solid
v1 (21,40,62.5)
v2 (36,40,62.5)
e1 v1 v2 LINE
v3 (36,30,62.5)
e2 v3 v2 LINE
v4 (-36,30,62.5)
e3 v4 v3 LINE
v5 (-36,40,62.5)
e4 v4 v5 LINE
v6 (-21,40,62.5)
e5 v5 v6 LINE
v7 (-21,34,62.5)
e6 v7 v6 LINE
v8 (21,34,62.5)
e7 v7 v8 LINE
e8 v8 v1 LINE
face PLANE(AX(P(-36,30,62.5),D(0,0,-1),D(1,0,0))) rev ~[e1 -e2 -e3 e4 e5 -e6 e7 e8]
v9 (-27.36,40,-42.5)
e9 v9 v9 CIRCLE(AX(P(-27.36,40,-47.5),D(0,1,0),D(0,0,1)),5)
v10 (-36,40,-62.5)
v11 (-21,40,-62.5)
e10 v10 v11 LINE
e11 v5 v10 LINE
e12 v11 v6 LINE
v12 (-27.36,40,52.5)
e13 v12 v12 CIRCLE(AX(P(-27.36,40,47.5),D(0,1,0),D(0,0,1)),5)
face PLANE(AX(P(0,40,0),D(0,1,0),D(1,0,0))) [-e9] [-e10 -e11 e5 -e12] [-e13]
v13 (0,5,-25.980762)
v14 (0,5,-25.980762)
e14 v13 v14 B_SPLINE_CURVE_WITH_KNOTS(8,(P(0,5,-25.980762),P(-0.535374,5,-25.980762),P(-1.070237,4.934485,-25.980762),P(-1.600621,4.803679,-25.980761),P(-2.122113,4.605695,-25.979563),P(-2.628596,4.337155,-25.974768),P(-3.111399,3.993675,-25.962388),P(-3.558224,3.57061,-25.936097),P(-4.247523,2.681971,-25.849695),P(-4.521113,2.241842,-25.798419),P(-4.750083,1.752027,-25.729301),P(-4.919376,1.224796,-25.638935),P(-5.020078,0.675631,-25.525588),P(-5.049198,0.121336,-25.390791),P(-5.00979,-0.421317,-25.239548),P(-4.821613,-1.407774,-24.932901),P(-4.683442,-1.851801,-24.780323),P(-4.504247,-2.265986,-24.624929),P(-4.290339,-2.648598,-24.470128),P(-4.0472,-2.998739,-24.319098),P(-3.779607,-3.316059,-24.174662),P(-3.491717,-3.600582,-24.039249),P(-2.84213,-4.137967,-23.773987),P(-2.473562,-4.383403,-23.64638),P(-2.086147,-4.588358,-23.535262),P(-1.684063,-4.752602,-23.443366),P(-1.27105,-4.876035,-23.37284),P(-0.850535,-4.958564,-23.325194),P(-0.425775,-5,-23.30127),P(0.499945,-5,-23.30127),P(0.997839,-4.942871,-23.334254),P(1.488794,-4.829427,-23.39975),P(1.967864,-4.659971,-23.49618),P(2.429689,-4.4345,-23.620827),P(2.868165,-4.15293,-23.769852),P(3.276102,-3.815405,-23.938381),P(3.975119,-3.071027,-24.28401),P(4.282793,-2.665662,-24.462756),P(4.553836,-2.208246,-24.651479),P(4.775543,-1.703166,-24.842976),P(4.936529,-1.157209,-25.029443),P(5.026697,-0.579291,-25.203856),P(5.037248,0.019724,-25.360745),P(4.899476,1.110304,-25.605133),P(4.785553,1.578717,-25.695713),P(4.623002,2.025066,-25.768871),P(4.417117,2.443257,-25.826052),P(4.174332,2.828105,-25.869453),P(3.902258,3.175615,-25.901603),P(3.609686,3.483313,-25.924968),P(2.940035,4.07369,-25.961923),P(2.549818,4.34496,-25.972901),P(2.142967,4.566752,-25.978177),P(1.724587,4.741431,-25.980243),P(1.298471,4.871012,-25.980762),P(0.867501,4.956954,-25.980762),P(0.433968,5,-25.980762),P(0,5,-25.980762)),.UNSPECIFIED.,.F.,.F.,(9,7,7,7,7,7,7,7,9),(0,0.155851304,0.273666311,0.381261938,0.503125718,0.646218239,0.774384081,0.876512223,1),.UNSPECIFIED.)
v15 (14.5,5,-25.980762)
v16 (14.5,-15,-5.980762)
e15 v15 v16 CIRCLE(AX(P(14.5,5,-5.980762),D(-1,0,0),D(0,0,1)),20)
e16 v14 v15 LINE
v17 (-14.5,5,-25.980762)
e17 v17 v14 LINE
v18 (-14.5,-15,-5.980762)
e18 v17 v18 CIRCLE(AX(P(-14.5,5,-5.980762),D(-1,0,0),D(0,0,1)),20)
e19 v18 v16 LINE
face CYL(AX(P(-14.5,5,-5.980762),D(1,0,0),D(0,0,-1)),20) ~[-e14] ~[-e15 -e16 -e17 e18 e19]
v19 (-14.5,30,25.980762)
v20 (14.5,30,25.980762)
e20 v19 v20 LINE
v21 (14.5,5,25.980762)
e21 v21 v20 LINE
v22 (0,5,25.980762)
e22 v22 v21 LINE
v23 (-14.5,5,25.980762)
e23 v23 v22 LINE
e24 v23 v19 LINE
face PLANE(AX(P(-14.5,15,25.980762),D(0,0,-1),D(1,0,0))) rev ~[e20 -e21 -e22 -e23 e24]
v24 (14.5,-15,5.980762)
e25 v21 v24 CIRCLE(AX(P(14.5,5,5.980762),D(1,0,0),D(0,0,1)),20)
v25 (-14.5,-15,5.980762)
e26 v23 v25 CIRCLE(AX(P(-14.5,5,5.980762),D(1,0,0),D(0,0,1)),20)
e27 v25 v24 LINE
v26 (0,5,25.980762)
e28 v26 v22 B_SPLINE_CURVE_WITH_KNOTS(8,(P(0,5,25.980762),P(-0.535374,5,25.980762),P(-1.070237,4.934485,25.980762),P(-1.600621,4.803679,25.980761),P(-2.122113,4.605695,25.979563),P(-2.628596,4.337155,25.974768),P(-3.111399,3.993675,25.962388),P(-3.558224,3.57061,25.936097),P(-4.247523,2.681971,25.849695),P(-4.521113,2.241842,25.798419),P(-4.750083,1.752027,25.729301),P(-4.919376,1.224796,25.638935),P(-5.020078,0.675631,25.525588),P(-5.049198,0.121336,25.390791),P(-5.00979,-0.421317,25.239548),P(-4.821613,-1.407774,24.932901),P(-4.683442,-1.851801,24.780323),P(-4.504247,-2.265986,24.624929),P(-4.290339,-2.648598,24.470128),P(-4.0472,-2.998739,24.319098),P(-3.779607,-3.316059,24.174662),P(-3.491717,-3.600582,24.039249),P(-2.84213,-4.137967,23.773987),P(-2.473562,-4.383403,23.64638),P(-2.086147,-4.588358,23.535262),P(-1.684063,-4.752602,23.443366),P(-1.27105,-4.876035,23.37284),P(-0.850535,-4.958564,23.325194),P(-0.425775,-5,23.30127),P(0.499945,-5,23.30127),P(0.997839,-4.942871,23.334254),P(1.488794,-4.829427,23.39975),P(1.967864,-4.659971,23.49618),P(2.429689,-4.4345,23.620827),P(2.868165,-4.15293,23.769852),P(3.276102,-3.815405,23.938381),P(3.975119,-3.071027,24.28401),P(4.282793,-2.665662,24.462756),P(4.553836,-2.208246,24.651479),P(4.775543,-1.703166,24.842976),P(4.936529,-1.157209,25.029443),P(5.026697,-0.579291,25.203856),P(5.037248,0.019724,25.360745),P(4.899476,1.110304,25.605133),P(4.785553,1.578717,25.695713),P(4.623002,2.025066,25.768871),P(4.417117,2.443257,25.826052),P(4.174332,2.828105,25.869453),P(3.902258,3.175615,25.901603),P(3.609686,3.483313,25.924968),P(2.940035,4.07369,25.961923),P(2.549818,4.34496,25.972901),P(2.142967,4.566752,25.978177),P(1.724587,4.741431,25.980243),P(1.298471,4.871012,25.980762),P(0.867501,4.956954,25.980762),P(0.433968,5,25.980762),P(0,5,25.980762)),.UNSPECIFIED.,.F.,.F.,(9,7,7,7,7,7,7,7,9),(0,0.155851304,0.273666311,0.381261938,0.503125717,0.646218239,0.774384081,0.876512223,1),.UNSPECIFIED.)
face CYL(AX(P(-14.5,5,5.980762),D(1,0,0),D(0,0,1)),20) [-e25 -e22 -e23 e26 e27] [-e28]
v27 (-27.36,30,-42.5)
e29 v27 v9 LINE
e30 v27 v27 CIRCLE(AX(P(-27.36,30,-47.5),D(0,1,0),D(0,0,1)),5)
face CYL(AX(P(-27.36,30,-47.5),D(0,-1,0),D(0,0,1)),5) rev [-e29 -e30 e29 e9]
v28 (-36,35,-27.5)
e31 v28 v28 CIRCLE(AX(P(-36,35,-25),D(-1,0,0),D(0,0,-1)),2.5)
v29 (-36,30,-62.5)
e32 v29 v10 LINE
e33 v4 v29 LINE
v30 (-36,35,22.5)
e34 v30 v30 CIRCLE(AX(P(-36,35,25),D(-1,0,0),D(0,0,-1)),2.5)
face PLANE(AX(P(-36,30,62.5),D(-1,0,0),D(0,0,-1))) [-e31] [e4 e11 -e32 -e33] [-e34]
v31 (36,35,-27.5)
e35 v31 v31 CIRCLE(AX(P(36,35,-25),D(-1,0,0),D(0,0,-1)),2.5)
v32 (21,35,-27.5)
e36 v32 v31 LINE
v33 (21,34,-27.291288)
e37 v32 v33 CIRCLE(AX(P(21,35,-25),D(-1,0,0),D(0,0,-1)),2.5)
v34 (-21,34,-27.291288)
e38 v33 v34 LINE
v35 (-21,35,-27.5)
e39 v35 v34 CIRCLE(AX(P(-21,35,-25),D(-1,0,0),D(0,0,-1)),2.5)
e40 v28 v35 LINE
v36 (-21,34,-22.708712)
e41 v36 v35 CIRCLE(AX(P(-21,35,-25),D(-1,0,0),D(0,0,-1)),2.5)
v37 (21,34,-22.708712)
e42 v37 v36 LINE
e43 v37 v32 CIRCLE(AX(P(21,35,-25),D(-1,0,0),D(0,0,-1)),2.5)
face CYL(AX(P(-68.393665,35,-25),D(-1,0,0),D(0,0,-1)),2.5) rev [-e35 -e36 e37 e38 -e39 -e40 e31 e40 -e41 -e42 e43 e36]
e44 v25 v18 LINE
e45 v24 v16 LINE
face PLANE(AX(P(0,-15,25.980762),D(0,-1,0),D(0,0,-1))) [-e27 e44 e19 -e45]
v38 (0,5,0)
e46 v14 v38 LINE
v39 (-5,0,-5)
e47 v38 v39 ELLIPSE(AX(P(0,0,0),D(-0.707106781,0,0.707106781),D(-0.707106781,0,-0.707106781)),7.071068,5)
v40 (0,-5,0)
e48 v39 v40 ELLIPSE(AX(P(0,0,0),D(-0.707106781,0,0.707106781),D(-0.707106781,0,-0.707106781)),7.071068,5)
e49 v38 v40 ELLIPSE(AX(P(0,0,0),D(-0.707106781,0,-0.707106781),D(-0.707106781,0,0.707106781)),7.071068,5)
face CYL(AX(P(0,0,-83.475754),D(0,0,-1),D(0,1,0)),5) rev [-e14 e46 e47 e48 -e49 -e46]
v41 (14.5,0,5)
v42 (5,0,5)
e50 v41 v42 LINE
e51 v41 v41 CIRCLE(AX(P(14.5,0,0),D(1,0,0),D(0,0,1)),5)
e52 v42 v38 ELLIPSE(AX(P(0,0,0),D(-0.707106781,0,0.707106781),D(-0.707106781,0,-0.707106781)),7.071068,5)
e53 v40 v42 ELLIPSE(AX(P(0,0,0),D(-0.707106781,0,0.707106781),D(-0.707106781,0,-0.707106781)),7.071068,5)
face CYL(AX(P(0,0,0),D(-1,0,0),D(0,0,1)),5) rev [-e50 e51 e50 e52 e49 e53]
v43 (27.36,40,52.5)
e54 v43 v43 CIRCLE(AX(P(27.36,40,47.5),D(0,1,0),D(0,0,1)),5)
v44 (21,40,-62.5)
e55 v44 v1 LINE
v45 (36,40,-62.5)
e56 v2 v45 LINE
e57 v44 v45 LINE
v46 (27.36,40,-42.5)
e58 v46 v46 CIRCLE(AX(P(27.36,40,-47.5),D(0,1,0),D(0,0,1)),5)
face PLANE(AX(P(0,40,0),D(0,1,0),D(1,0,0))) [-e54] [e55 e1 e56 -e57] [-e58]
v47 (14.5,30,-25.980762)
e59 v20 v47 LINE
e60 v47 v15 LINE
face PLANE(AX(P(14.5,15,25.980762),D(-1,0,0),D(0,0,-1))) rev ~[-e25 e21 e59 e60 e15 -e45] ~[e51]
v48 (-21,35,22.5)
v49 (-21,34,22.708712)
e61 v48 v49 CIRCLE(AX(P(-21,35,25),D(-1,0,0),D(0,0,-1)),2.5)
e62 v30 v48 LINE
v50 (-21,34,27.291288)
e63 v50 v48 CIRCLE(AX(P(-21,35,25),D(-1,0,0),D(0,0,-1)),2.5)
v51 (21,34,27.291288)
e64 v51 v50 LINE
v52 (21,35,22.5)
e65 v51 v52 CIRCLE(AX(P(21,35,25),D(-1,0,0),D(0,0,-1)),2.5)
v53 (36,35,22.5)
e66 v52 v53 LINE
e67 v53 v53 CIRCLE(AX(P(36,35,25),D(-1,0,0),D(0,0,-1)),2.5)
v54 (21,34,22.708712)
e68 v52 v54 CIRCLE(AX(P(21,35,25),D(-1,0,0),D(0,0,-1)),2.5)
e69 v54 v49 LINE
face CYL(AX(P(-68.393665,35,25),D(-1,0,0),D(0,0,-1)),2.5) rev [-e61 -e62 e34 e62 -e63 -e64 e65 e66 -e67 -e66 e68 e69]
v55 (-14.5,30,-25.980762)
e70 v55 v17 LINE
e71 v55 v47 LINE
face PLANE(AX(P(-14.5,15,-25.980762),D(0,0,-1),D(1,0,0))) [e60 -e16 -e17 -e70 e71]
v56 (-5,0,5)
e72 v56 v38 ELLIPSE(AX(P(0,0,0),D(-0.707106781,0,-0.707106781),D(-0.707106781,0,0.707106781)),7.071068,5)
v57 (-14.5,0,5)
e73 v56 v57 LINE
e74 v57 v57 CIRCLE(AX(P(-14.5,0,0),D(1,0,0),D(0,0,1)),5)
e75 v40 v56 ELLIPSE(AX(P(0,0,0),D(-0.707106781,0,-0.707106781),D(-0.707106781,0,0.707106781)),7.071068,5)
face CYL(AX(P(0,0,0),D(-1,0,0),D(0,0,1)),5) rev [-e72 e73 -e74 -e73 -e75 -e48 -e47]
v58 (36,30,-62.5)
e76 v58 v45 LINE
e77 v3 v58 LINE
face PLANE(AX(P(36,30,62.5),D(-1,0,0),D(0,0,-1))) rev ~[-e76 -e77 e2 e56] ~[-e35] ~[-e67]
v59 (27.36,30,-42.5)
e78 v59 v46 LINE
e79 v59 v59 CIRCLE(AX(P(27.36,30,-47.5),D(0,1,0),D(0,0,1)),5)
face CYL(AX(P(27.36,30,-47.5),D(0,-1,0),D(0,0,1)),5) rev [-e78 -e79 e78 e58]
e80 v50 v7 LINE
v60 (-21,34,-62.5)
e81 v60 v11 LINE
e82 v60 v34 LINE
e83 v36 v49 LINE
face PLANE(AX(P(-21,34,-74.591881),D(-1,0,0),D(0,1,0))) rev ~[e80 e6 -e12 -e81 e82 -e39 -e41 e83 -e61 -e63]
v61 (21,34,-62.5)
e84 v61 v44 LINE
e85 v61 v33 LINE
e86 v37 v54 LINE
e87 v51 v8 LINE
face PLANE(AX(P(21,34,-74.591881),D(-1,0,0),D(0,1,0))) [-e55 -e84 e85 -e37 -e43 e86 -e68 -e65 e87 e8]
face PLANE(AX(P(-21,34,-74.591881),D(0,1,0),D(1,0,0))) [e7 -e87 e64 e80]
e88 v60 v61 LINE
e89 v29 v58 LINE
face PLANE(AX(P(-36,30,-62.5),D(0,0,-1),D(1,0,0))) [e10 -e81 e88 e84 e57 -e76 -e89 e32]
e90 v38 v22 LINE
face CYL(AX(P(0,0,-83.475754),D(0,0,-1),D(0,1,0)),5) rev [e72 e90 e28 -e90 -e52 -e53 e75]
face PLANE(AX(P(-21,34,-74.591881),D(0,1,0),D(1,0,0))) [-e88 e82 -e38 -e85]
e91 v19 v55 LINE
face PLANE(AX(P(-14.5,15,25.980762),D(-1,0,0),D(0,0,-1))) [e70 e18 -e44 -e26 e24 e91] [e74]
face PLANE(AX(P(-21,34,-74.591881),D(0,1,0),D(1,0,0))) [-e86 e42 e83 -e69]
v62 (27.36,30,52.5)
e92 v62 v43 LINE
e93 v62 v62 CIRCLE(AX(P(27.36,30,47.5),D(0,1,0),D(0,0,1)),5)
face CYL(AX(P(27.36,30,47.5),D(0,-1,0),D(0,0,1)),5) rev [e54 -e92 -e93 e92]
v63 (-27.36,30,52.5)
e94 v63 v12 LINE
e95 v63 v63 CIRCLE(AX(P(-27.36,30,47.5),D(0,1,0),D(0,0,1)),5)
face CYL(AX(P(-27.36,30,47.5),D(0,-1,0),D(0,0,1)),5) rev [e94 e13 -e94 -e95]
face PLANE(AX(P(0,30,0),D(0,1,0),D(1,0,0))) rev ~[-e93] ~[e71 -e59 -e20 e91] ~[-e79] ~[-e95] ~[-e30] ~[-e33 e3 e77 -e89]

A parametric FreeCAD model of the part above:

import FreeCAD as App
import Part
import Sketcher
Q = App.Units.Quantity


def edges_at(feature, points):
    """Names of the edges that pass closest to the given points."""
    edges = feature.Shape.Edges
    near = lambda p: min(range(len(edges)), key=lambda i: edges[i].distToShape(Part.Vertex(*p))[0])
    return sorted({f"Edge{near(p) + 1}" for p in points})

doc = App.newDocument("Part")
params = doc.addObject("Spreadsheet::Sheet", "Params")
for row, (alias, value) in enumerate([
    ("sketch1_diameter", "10 mm"),
    ("sketch1_width", "30 mm"),
    ("pad1_length", "29 mm"),
    ("sketch2_width", "29 mm"),
    ("pad2_length", "15 mm"),
    ("sketch3_diameter", "10 mm"),
    ("sketch3_width", "72 mm"),
    ("sketch3_height", "125 mm"),
    ("pad3_length", "10 mm"),
    ("fillet_radius", "20 mm"),
    ("sketch4_diameter", "10 mm"),
    ("sketch5_width", "42 mm"),
    ("sketch5_height", "6 mm"),
    ("sketch6_diameter", "5 mm"),
], start=1):
    params.set(f"A{row}", alias)
    params.set(f"B{row}", "=" + value)
    params.setAlias(f"B{row}", alias)

body = doc.addObject("PartDesign::Body", "Body")

sketch1 = doc.addObject("Sketcher::SketchObject", "Sketch")
body.addObject(sketch1)
sketch1.AttachmentSupport = (doc.YZ_Plane, [""])
sketch1.MapMode = "FlatFace"
sketch1.addGeometry([
    Part.LineSegment(App.Vector(15, 25.980762, 0), App.Vector(-15, 25.980762, 0)),
    Part.LineSegment(App.Vector(-15, 25.980762, 0), App.Vector(-15, -25.980762, 0)),
    Part.LineSegment(App.Vector(-15, -25.980762, 0), App.Vector(15, -25.980762, 0)),
    Part.LineSegment(App.Vector(15, -25.980762, 0), App.Vector(15, 25.980762, 0)),
    Part.Circle(App.Vector(0, 0, 0), App.Vector(0, 0, 1), 5),
], False)
sketch1.addConstraint([
    Sketcher.Constraint("Coincident", 0, 2, 1, 1),
    Sketcher.Constraint("Coincident", 1, 2, 2, 1),
    Sketcher.Constraint("Coincident", 2, 2, 3, 1),
    Sketcher.Constraint("Coincident", 3, 2, 0, 1),
    Sketcher.Constraint("Horizontal", 0),
    Sketcher.Constraint("Vertical", 1),
    Sketcher.Constraint("Horizontal", 2),
    Sketcher.Constraint("Vertical", 3),
    Sketcher.Constraint("Coincident", 4, 3, -1, 1),
    Sketcher.Constraint("Symmetric", 0, 2, 2, 2, -1, 1),
    Sketcher.Constraint("Diameter", 4, Q("10 mm")),
    Sketcher.Constraint("DistanceX", 0, 2, 0, 1, Q("30 mm")),
    Sketcher.Constraint("DistanceY", 1, 2, 1, 1, Q("51.961524 mm")),
])
sketch1.setExpression("Constraints[10]", "Params.sketch1_diameter")
sketch1.setExpression("Constraints[11]", "Params.sketch1_width")
pad1 = doc.addObject("PartDesign::Pad", "Pad")
body.addObject(pad1)
pad1.Profile = sketch1
pad1.setExpression("Length", "Params.pad1_length")
pad1.Midplane = True

sketch2 = doc.addObject("Sketcher::SketchObject", "Sketch001")
body.addObject(sketch2)
sketch2.AttachmentSupport = (doc.XZ_Plane, [""])
sketch2.MapMode = "FlatFace"
sketch2.AttachmentOffset = App.Placement(App.Vector(0, 0, -15), App.Rotation())
sketch2.addGeometry([
    Part.LineSegment(App.Vector(-14.5, -25.980762, 0), App.Vector(-14.5, 25.980762, 0)),
    Part.LineSegment(App.Vector(-14.5, 25.980762, 0), App.Vector(14.5, 25.980762, 0)),
    Part.LineSegment(App.Vector(14.5, 25.980762, 0), App.Vector(14.5, -25.980762, 0)),
    Part.LineSegment(App.Vector(14.5, -25.980762, 0), App.Vector(-14.5, -25.980762, 0)),
], False)
sketch2.addConstraint([
    Sketcher.Constraint("Coincident", 0, 2, 1, 1),
    Sketcher.Constraint("Coincident", 1, 2, 2, 1),
    Sketcher.Constraint("Coincident", 2, 2, 3, 1),
    Sketcher.Constraint("Coincident", 3, 2, 0, 1),
    Sketcher.Constraint("Vertical", 0),
    Sketcher.Constraint("Horizontal", 1),
    Sketcher.Constraint("Vertical", 2),
    Sketcher.Constraint("Horizontal", 3),
    Sketcher.Constraint("Symmetric", 0, 2, 2, 2, -1, 1),
    Sketcher.Constraint("DistanceX", 1, 1, 1, 2, Q("29 mm")),
    Sketcher.Constraint("DistanceY", 0, 1, 0, 2, Q("51.961524 mm")),
])
sketch2.setExpression("Constraints[9]", "Params.sketch2_width")
pad2 = doc.addObject("PartDesign::Pad", "Pad001")
body.addObject(pad2)
pad2.Profile = sketch2
pad2.setExpression("Length", "Params.pad2_length")
pad2.Reversed = True

sketch3 = doc.addObject("Sketcher::SketchObject", "Sketch002")
body.addObject(sketch3)
sketch3.AttachmentSupport = (doc.XZ_Plane, [""])
sketch3.MapMode = "FlatFace"
sketch3.AttachmentOffset = App.Placement(App.Vector(0, 0, -30), App.Rotation())
sketch3.addGeometry([
    Part.LineSegment(App.Vector(-36, -62.5, 0), App.Vector(-36, 62.5, 0)),
    Part.LineSegment(App.Vector(-36, 62.5, 0), App.Vector(36, 62.5, 0)),
    Part.LineSegment(App.Vector(36, 62.5, 0), App.Vector(36, -62.5, 0)),
    Part.LineSegment(App.Vector(36, -62.5, 0), App.Vector(-36, -62.5, 0)),
    Part.Circle(App.Vector(-27.36, 47.5, 0), App.Vector(0, 0, 1), 5),
    Part.Circle(App.Vector(27.36, 47.5, 0), App.Vector(0, 0, 1), 5),
    Part.Circle(App.Vector(-27.36, -47.5, 0), App.Vector(0, 0, 1), 5),
    Part.Circle(App.Vector(27.36, -47.5, 0), App.Vector(0, 0, 1), 5),
], False)
sketch3.addConstraint([
    Sketcher.Constraint("Coincident", 0, 2, 1, 1),
    Sketcher.Constraint("Coincident", 1, 2, 2, 1),
    Sketcher.Constraint("Coincident", 2, 2, 3, 1),
    Sketcher.Constraint("Coincident", 3, 2, 0, 1),
    Sketcher.Constraint("Vertical", 0),
    Sketcher.Constraint("Horizontal", 1),
    Sketcher.Constraint("Vertical", 2),
    Sketcher.Constraint("Horizontal", 3),
    Sketcher.Constraint("Equal", 4, 5),
    Sketcher.Constraint("Equal", 5, 6),
    Sketcher.Constraint("Equal", 6, 7),
    Sketcher.Constraint("Symmetric", 5, 3, 6, 3, -1, 1),
    Sketcher.Constraint("Symmetric", 4, 3, 7, 3, -1, 1),
    Sketcher.Constraint("Symmetric", 0, 2, 2, 2, -1, 1),
    Sketcher.Constraint("Symmetric", 4, 3, 5, 3, -2),
    Sketcher.Constraint("Diameter", 4, Q("10 mm")),
    Sketcher.Constraint("DistanceX", 1, 1, 1, 2, Q("72 mm")),
    Sketcher.Constraint("DistanceY", 0, 1, 0, 2, Q("125 mm")),
    Sketcher.Constraint("DistanceY", 6, 3, 4, 3, Q("95 mm")),
    Sketcher.Constraint("DistanceX", 4, 3, -1, 1, Q("27.36 mm")),
])
sketch3.setExpression("Constraints[15]", "Params.sketch3_diameter")
sketch3.setExpression("Constraints[16]", "Params.sketch3_width")
sketch3.setExpression("Constraints[17]", "Params.sketch3_height")
pad3 = doc.addObject("PartDesign::Pad", "Pad002")
body.addObject(pad3)
pad3.Profile = sketch3
pad3.setExpression("Length", "Params.pad3_length")
pad3.Reversed = True
doc.recompute()

fillet = doc.addObject("PartDesign::Fillet", "Fillet")
body.addObject(fillet)
fillet.Base = (pad3, edges_at(pad3, [(0, -15, 25.981), (0, -15, -25.981)]))
fillet.setExpression("Radius", "Params.fillet_radius")

sketch4 = doc.addObject("Sketcher::SketchObject", "Sketch003")
body.addObject(sketch4)
sketch4.AttachmentSupport = (doc.XY_Plane, [""])
sketch4.MapMode = "FlatFace"
sketch4.addGeometry(Part.Circle(App.Vector(0, 0, 0), App.Vector(0, 0, 1), 5), False)
sketch4.addConstraint([
    Sketcher.Constraint("Coincident", 0, 3, -1, 1),
    Sketcher.Constraint("Diameter", 0, Q("10 mm")),
])
sketch4.setExpression("Constraints[1]", "Params.sketch4_diameter")
pocket1 = doc.addObject("PartDesign::Pocket", "Pocket")
body.addObject(pocket1)
pocket1.Profile = sketch4
pocket1.Type = "ThroughAll"
pocket1.Midplane = True

sketch5 = doc.addObject("Sketcher::SketchObject", "Sketch004")
body.addObject(sketch5)
sketch5.AttachmentSupport = (doc.XY_Plane, [""])
sketch5.MapMode = "FlatFace"
sketch5.AttachmentOffset = App.Placement(App.Vector(0, 0, 62.5), App.Rotation())
sketch5.addGeometry([
    Part.LineSegment(App.Vector(-21, 40, 0), App.Vector(-21, 34, 0)),
    Part.LineSegment(App.Vector(-21, 34, 0), App.Vector(21, 34, 0)),
    Part.LineSegment(App.Vector(21, 34, 0), App.Vector(21, 40, 0)),
    Part.LineSegment(App.Vector(21, 40, 0), App.Vector(-21, 40, 0)),
], False)
sketch5.addConstraint([
    Sketcher.Constraint("Coincident", 0, 2, 1, 1),
    Sketcher.Constraint("Coincident", 1, 2, 2, 1),
    Sketcher.Constraint("Coincident", 2, 2, 3, 1),
    Sketcher.Constraint("Coincident", 3, 2, 0, 1),
    Sketcher.Constraint("Vertical", 0),
    Sketcher.Constraint("Horizontal", 1),
    Sketcher.Constraint("Vertical", 2),
    Sketcher.Constraint("Horizontal", 3),
    Sketcher.Constraint("DistanceX", 1, 1, 1, 2, Q("42 mm")),
    Sketcher.Constraint("DistanceY", 0, 2, 0, 1, Q("6 mm")),
    Sketcher.Constraint("DistanceX", 0, 2, -1, 1, Q("21 mm")),
    Sketcher.Constraint("DistanceY", -1, 1, 0, 2, Q("34 mm")),
])
sketch5.setExpression("Constraints[8]", "Params.sketch5_width")
sketch5.setExpression("Constraints[9]", "Params.sketch5_height")
pocket2 = doc.addObject("PartDesign::Pocket", "Pocket001")
body.addObject(pocket2)
pocket2.Profile = sketch5
pocket2.Type = "ThroughAll"
pocket2.Midplane = True

sketch6 = doc.addObject("Sketcher::SketchObject", "Sketch005")
body.addObject(sketch6)
sketch6.AttachmentSupport = (doc.YZ_Plane, [""])
sketch6.MapMode = "FlatFace"
sketch6.AttachmentOffset = App.Placement(App.Vector(0, 0, 36), App.Rotation())
sketch6.addGeometry([
    Part.Circle(App.Vector(35, 25, 0), App.Vector(0, 0, 1), 2.5),
    Part.Circle(App.Vector(35, -25, 0), App.Vector(0, 0, 1), 2.5),
], False)
sketch6.addConstraint([
    Sketcher.Constraint("Equal", 0, 1),
    Sketcher.Constraint("Symmetric", 0, 3, 1, 3, -1),
    Sketcher.Constraint("Diameter", 0, Q("5 mm")),
    Sketcher.Constraint("DistanceX", -1, 1, 0, 3, Q("35 mm")),
    Sketcher.Constraint("DistanceY", -1, 1, 0, 3, Q("25 mm")),
])
sketch6.setExpression("Constraints[2]", "Params.sketch6_diameter")
pocket3 = doc.addObject("PartDesign::Pocket", "Pocket002")
body.addObject(pocket3)
pocket3.Profile = sketch6
pocket3.Type = "ThroughAll"
pocket3.Midplane = True

doc.recompute()
